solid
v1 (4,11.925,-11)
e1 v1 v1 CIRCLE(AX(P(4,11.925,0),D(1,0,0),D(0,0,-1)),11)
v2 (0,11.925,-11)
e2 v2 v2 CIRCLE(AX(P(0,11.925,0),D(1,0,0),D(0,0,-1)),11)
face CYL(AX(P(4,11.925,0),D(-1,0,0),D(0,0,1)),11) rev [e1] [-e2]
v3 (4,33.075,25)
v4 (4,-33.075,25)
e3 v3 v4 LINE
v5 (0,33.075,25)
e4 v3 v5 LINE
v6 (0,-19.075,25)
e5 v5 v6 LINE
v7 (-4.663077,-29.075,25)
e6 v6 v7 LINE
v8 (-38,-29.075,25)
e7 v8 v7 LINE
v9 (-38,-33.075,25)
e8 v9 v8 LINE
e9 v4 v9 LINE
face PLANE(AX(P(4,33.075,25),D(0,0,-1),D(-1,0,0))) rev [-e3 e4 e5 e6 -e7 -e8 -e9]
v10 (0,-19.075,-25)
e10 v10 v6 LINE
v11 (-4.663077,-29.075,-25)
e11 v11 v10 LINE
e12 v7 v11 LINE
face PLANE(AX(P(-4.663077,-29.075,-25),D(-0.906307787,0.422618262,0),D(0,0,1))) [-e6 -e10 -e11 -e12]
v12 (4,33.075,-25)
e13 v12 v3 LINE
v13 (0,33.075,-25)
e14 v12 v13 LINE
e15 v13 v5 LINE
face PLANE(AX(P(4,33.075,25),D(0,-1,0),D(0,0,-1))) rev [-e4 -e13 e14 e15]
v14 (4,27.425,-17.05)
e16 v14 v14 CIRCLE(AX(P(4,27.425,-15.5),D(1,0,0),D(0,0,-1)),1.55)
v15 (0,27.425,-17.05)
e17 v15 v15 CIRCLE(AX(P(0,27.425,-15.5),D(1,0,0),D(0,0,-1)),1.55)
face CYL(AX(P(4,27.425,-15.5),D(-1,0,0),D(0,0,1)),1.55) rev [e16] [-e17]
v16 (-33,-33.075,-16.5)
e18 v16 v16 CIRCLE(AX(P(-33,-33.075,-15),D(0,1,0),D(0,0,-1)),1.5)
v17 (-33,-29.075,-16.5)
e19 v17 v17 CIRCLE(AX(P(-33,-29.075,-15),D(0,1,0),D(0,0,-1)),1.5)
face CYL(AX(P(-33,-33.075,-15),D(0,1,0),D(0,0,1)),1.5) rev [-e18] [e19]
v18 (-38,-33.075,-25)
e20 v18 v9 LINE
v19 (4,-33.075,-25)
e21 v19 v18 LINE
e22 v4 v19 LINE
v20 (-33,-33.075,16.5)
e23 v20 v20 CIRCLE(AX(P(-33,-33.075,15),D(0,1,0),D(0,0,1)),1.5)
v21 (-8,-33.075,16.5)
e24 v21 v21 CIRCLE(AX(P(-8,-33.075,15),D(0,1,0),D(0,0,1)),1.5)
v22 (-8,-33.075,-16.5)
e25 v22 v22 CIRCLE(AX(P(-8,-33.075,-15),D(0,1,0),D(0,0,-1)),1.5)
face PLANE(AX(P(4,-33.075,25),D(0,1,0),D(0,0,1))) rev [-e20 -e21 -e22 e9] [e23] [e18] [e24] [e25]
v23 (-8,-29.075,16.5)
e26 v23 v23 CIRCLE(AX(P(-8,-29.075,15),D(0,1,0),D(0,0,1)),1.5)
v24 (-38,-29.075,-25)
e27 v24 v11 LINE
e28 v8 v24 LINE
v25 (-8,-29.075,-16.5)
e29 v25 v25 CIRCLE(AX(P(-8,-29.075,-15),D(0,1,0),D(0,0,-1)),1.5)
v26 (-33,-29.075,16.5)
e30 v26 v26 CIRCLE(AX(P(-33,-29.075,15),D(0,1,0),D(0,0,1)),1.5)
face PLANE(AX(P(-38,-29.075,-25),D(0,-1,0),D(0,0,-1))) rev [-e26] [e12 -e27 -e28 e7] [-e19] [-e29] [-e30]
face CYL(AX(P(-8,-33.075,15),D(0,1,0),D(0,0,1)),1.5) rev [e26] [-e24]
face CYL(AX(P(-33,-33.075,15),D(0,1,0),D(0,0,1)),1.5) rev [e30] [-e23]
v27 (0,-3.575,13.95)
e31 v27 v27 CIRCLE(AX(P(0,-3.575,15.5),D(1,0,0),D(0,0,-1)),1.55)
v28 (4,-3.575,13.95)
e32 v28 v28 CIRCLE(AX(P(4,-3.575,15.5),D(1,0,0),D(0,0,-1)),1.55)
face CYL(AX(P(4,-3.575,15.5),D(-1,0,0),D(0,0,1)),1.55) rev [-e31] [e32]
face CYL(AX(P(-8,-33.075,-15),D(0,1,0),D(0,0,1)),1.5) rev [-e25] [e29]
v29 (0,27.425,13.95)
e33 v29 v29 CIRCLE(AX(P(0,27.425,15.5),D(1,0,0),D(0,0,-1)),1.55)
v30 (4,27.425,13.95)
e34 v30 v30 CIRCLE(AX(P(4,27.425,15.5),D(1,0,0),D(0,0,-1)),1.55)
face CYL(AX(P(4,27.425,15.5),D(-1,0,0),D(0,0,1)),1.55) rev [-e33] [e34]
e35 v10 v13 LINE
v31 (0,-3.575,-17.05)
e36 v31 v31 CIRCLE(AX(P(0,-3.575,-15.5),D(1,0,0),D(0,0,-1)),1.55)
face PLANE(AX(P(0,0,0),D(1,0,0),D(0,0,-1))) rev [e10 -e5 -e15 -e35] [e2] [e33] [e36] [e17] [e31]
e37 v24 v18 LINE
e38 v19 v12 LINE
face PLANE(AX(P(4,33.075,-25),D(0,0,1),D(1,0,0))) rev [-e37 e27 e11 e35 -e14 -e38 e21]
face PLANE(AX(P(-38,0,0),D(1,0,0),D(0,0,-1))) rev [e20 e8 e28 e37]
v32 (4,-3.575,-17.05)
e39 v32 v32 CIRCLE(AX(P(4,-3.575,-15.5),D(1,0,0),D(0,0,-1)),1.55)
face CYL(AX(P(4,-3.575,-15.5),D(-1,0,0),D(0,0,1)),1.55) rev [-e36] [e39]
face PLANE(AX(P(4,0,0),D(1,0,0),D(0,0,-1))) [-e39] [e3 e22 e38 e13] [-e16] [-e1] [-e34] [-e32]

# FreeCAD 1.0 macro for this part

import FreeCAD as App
import Part
import Sketcher
from FreeCAD import Vector


def edges_at(feature, points):
    """Names of the edges that pass closest to the given points."""
    edges = feature.Shape.Edges
    near = lambda p: min(range(len(edges)), key=lambda i: edges[i].distToShape(Part.Vertex(*p))[0])
    return sorted({f"Edge{near(p) + 1}" for p in points})


def add_polygon(sketch, points):
    """Adds a closed chain of lines whose ends are joined by coincident constraints."""
    first, n = sketch.GeometryCount, len(points)
    for a, b in zip(points, points[1:] + points[:1]):
        sketch.addGeometry(Part.LineSegment(App.Vector(*a, 0), App.Vector(*b, 0)), False)
    for i in range(n):
        sketch.addConstraint(Sketcher.Constraint("Coincident", first + i, 2, first + (i + 1) % n, 1))

doc = App.newDocument("Part")
body = doc.addObject("PartDesign::Body", "Body")

sketch1 = body.newObject("Sketcher::SketchObject", "Sketch")
sketch1.AttachmentSupport = (doc.getObject("YZ_Plane"), [""])
sketch1.MapMode = "FlatFace"
add_polygon(sketch1, [(33.1, 25), (-33.1, 25), (-33.1, -25), (33.1, -25)])
sketch1.addGeometry(Part.Circle(Vector(-3.6, 15.5, 0), Vector(0, 0, 1), 1.6), False)
sketch1.addGeometry(Part.Circle(Vector(-3.6, -15.5, 0), Vector(0, 0, 1), 1.6), False)
sketch1.addGeometry(Part.Circle(Vector(27.4, 15.5, 0), Vector(0, 0, 1), 1.6), False)
sketch1.addGeometry(Part.Circle(Vector(11.9, 0, 0), Vector(0, 0, 1), 11), False)
sketch1.addGeometry(Part.Circle(Vector(27.4, -15.5, 0), Vector(0, 0, 1), 1.6), False)
sketch1.addConstraint([
    Sketcher.Constraint("Horizontal", 0),
    Sketcher.Constraint("Vertical", 1),
    Sketcher.Constraint("Horizontal", 2),
    Sketcher.Constraint("Vertical", 3),
    Sketcher.Constraint("Equal", 4, 5),
    Sketcher.Constraint("Equal", 5, 6),
    Sketcher.Constraint("Equal", 6, 8),
    Sketcher.Constraint("Symmetric", 0, 2, 2, 2, -1, 1),
    Sketcher.Constraint("Symmetric", 4, 3, 5, 3, -1),
    Sketcher.Constraint("Symmetric", 6, 3, 8, 3, -1),
    Sketcher.Constraint("PointOnObject", 7, 3, -1),
    Sketcher.Constraint("Horizontal", 4, 3, 6, 3),
    Sketcher.Constraint("Diameter", 7, 22.0),
    Sketcher.Constraint("Diameter", 4, 3.1),
    Sketcher.Constraint("DistanceY", 1, 2, 1, 1, 50.0),
    Sketcher.Constraint("DistanceY", 5, 3, 4, 3, 31.0),
    Sketcher.Constraint("DistanceX", 4, 3, 6, 3, 31.0),
    Sketcher.Constraint("DistanceX", 0, 2, 7, 3, 45.0),
    Sketcher.Constraint("DistanceX", 0, 2, 0, 1, 66.15),
    Sketcher.Constraint("DistanceX", 4, 3, 7, 3, 15.5),
])
pad1 = body.newObject("PartDesign::Pad", "Pad")
pad1.Profile = sketch1
pad1.Length = 4

sketch2 = body.newObject("Sketcher::SketchObject", "Sketch001")
sketch2.AttachmentSupport = (doc.getObject("YZ_Plane"), [""])
sketch2.MapMode = "FlatFace"
add_polygon(sketch2, [(-29.1, -25), (-33.1, -25), (-33.1, 25), (-29.1, 25)])
sketch2.addConstraint([
    Sketcher.Constraint("Horizontal", 0),
    Sketcher.Constraint("Vertical", 1),
    Sketcher.Constraint("Horizontal", 2),
    Sketcher.Constraint("Vertical", 3),
    Sketcher.Constraint("DistanceX", 0, 2, 0, 1, 4.0),
    Sketcher.Constraint("DistanceY", 1, 1, 1, 2, 50.0),
    Sketcher.Constraint("DistanceY", 0, 2, -1, 1, 25.0),
    Sketcher.Constraint("DistanceX", 0, 2, -1, 1, 33.075),
])
pad2 = body.newObject("PartDesign::Pad", "Pad001")
pad2.Profile = sketch2
pad2.Length = 38
pad2.Reversed = True

sketch3 = body.newObject("Sketcher::SketchObject", "Sketch002")
sketch3.AttachmentSupport = (doc.getObject("XZ_Plane"), [""])
sketch3.MapMode = "FlatFace"
sketch3.AttachmentOffset = App.Placement(Vector(0, 0, 29.075), App.Rotation())
sketch3.addGeometry([
    Part.Circle(Vector(-33, 15, 0), Vector(0, 0, 1), 1.5),
    Part.Circle(Vector(-8, 15, 0), Vector(0, 0, 1), 1.5),
    Part.Circle(Vector(-8, -15, 0), Vector(0, 0, 1), 1.5),
    Part.Circle(Vector(-33, -15, 0), Vector(0, 0, 1), 1.5),
], False)
sketch3.addConstraint([
    Sketcher.Constraint("Equal", 0, 1),
    Sketcher.Constraint("Equal", 1, 2),
    Sketcher.Constraint("Equal", 2, 3),
    Sketcher.Constraint("Symmetric", 1, 3, 2, 3, -1),
    Sketcher.Constraint("Symmetric", 0, 3, 3, 3, -1),
    Sketcher.Constraint("Horizontal", 0, 3, 1, 3),
    Sketcher.Constraint("Diameter", 0, 3.0),
    Sketcher.Constraint("DistanceX", 0, 3, -1, 1, 33.0),
    Sketcher.Constraint("DistanceY", -1, 1, 0, 3, 15.0),
    Sketcher.Constraint("DistanceX", 1, 3, -1, 1, 8.0),
])
pocket1 = body.newObject("PartDesign::Pocket", "Pocket")
pocket1.Profile = sketch3
pocket1.Type = "ThroughAll"
pocket1.Reversed = True
doc.recompute()

chamfer = body.newObject("PartDesign::Chamfer", "Chamfer")
chamfer.Base = (pocket1, edges_at(pocket1, [(0, -29.075, 0)]))
chamfer.ChamferType = "Two distances"
chamfer.Size = 10
chamfer.Size2 = 4.663077

doc.recompute()
